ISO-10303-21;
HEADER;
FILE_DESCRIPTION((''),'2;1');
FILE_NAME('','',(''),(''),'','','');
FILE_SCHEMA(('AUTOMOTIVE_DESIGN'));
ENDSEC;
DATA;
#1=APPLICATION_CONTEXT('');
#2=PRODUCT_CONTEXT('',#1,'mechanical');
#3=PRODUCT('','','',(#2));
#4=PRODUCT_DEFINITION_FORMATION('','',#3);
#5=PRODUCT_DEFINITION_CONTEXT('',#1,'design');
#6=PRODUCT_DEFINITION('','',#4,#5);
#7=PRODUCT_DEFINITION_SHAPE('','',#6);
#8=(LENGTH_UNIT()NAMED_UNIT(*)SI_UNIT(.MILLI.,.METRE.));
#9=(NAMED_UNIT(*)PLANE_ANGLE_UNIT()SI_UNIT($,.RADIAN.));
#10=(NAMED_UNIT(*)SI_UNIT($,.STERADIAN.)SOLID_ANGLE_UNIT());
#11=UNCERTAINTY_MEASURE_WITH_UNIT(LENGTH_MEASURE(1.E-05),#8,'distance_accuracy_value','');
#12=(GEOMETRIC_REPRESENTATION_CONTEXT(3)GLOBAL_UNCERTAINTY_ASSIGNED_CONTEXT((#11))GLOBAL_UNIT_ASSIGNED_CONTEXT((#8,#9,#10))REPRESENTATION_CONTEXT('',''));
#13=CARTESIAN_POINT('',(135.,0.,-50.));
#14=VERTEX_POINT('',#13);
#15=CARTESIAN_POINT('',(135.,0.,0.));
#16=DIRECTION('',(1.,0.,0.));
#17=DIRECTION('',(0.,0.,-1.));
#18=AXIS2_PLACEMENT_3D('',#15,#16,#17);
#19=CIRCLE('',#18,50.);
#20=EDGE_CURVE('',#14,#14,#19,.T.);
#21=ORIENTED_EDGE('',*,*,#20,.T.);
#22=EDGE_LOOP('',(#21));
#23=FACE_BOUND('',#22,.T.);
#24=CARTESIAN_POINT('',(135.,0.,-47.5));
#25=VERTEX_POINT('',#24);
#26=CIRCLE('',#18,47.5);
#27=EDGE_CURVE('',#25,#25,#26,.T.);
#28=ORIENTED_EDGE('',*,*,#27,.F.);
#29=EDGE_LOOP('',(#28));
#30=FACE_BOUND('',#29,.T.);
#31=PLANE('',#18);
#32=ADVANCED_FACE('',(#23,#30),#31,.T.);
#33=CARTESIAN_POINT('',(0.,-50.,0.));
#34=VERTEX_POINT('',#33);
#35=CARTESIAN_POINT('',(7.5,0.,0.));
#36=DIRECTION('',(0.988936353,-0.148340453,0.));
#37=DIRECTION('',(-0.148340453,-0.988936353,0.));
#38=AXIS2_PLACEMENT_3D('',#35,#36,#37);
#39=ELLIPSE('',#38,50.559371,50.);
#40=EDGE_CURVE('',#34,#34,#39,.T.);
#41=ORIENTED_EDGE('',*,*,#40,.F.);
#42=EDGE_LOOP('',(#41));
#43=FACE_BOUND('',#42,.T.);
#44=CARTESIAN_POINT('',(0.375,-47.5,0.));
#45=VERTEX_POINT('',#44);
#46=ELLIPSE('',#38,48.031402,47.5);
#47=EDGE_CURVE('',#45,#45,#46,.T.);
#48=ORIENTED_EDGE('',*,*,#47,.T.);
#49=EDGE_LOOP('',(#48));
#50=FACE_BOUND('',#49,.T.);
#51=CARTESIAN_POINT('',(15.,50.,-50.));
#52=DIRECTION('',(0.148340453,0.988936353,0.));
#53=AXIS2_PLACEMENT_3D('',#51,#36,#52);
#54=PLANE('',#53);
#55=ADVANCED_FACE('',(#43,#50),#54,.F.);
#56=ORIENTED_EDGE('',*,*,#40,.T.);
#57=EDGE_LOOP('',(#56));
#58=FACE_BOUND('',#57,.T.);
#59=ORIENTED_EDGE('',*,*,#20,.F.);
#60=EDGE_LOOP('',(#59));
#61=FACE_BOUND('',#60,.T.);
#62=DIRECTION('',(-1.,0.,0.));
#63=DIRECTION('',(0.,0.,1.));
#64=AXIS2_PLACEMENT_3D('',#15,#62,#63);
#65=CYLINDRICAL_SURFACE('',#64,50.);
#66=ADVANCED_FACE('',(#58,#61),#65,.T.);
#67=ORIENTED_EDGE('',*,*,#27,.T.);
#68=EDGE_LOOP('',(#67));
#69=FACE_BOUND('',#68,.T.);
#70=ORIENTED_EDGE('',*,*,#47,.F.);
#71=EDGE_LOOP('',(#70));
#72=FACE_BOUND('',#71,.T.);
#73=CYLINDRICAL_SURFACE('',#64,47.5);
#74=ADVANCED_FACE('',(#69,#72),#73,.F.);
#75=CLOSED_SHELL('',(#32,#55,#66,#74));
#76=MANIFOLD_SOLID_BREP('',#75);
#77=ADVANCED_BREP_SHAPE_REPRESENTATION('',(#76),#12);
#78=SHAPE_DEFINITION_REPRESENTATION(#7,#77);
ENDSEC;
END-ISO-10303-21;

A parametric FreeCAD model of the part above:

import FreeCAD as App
import Part
import Sketcher
Q = App.Units.Quantity


def add_polygon(sketch, points):
    """Adds a closed chain of lines whose ends are joined by coincident constraints."""
    first, n = sketch.GeometryCount, len(points)
    for a, b in zip(points, points[1:] + points[:1]):
        sketch.addGeometry(Part.LineSegment(App.Vector(*a, 0), App.Vector(*b, 0)), False)
    for i in range(n):
        sketch.addConstraint(Sketcher.Constraint("Coincident", first + i, 2, first + (i + 1) % n, 1))

doc = App.newDocument("Part")
body = doc.addObject("PartDesign::Body", "Body")

# Sketch on YZ plane
sketch1 = doc.addObject("Sketcher::SketchObject", "Sketch")
body.addObject(sketch1)
sketch1.AttachmentSupport = (doc.YZ_Plane, [""])
sketch1.MapMode = "FlatFace"
sketch1.addGeometry([
    Part.Circle(App.Vector(0, 0, 0), App.Vector(0, 0, 1), 50),
    Part.Circle(App.Vector(0, 0, 0), App.Vector(0, 0, 1), 48),
], False)
sketch1.addConstraint([
    Sketcher.Constraint("Coincident", 0, 3, -1, 1),
    Sketcher.Constraint("Coincident", 1, 3, -1, 1),
    Sketcher.Constraint("Diameter", 0, Q("100 mm")),
    Sketcher.Constraint("Diameter", 1, Q("95 mm")),
])
pad1 = doc.addObject("PartDesign::Pad", "Pad")
body.addObject(pad1)
pad1.Profile = sketch1
pad1.Length = 135

# Sketch on XY plane
sketch2 = doc.addObject("Sketcher::SketchObject", "Sketch001")
body.addObject(sketch2)
sketch2.AttachmentSupport = (doc.XY_Plane, [""])
sketch2.MapMode = "FlatFace"
add_polygon(sketch2, [(0, 50), (0, -50), (15, 50)])  # lines 0-2
sketch2.addConstraint([
    Sketcher.Constraint("Vertical", 0),
    Sketcher.Constraint("Horizontal", 2),
    Sketcher.Constraint("Symmetric", 0, 2, 2, 2, -1, 1),
    Sketcher.Constraint("DistanceX", 2, 2, 2, 1, Q("15 mm")),
    Sketcher.Constraint("DistanceY", 0, 2, 0, 1, Q("100 mm")),
])
pocket1 = doc.addObject("PartDesign::Pocket", "Pocket")
body.addObject(pocket1)
pocket1.Profile = sketch2
pocket1.Type = "ThroughAll"
pocket1.Midplane = True

doc.recompute()
